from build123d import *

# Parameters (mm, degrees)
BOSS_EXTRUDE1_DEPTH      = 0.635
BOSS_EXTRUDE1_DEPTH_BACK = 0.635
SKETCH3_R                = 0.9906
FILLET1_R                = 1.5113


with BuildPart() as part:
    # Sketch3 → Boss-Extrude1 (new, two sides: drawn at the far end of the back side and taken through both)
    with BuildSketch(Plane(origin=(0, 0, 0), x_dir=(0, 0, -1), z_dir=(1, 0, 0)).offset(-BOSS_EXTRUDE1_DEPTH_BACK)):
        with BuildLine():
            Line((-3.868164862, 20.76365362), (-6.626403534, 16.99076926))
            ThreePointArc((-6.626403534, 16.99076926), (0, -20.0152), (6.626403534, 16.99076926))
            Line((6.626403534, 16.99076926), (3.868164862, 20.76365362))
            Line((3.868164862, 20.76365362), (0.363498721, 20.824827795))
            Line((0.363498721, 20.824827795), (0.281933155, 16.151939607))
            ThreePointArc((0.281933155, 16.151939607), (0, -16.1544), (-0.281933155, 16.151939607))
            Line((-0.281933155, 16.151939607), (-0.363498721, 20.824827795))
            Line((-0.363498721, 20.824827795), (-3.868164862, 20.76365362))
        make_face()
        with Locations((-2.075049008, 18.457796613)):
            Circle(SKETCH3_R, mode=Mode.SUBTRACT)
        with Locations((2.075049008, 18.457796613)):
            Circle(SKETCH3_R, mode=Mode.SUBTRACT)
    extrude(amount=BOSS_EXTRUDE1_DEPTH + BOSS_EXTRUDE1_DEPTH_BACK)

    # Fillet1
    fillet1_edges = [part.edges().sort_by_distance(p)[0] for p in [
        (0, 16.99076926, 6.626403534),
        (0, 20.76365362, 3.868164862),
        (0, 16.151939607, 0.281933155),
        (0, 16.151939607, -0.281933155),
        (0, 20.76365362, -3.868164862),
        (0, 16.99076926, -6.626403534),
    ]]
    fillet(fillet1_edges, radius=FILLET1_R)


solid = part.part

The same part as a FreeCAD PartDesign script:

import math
import FreeCAD as App
import Part
import Sketcher

V = App.Vector
Q = App.Units.Quantity


def edges_at(feature, points):
    """Names of the edges that pass closest to the given points."""
    edges = feature.Shape.Edges
    near = lambda p: min(range(len(edges)), key=lambda i: edges[i].distToShape(Part.Vertex(*p))[0])
    return sorted({f"Edge{near(p) + 1}" for p in points})

doc = App.newDocument("Part")
body = doc.addObject("PartDesign::Body", "Body")

# Sketch on YZ plane
sketch1 = doc.addObject("Sketcher::SketchObject", "Sketch")
body.addObject(sketch1)
sketch1.AttachmentSupport = (doc.YZ_Plane, [""])
sketch1.MapMode = "FlatFace"
sketch1.addGeometry([
    Part.LineSegment(V(20.8, 3.9, 0), V(17, 6.6, 0)),  # 0
    Part.ArcOfCircle(Part.Circle(V(-0.9, 0, 0), V(0, 0, 1), 19.1), math.radians(20), math.radians(340)),  # 1
    Part.LineSegment(V(17, -6.6, 0), V(20.8, -3.9, 0)),  # 2
    Part.LineSegment(V(20.8, -3.9, 0), V(20.8, -0.4, 0)),  # 3
    Part.LineSegment(V(20.8, -0.4, 0), V(16.2, -0.3, 0)),  # 4
    Part.ArcOfCircle(Part.Circle(V(0, 0, 0), V(0, 0, 1), 16.2), math.radians(1), math.radians(359)),  # 5
    Part.LineSegment(V(16.2, 0.3, 0), V(20.8, 0.4, 0)),  # 6
    Part.LineSegment(V(20.8, 0.4, 0), V(20.8, 3.9, 0)),  # 7
    Part.Circle(V(18.5, 2.1, 0), V(0, 0, 1), 1),  # 8
    Part.Circle(V(18.5, -2.1, 0), V(0, 0, 1), 1),  # 9
], False)
sketch1.addConstraint([
    Sketcher.Constraint("Coincident", 0, 2, 1, 1),
    Sketcher.Constraint("Coincident", 1, 2, 2, 1),
    Sketcher.Constraint("Coincident", 2, 2, 3, 1),
    Sketcher.Constraint("Coincident", 3, 2, 4, 1),
    Sketcher.Constraint("Coincident", 4, 2, 5, 2),
    Sketcher.Constraint("Coincident", 5, 1, 6, 1),
    Sketcher.Constraint("Coincident", 6, 2, 7, 1),
    Sketcher.Constraint("Coincident", 7, 2, 0, 1),
    Sketcher.Constraint("Coincident", 5, 3, -1, 1),
    Sketcher.Constraint("Equal", 8, 9),
    Sketcher.Constraint("Symmetric", 8, 3, 9, 3, -1),
    Sketcher.Constraint("Symmetric", 0, 2, 1, 2, -1),
    Sketcher.Constraint("Symmetric", 3, 2, 6, 2, -1),
    Sketcher.Constraint("Symmetric", 2, 2, 7, 2, -1),
    Sketcher.Constraint("Perpendicular", 3, 4),
    Sketcher.Constraint("Perpendicular", 6, 7),
    Sketcher.Constraint("Equal", 2, 4),
    Sketcher.Constraint("Diameter", 8, Q("0.078 in")),
    Sketcher.Constraint("Angle", 3, Q("89 deg")),
    Sketcher.Constraint("Radius", 5, Q("0.636 in")),
    Sketcher.Constraint("Distance", 0, Q("0.184 in")),
    Sketcher.Constraint("Distance", 3, Q("0.138 in")),
    Sketcher.Constraint("Radius", 1, Q("19.096257 mm")),
    Sketcher.Constraint("DistanceY", 3, 2, -1, 1, Q("0.363499 mm")),
    Sketcher.Constraint("DistanceY", 9, 3, 8, 3, Q("4.150098 mm")),
    Sketcher.Constraint("DistanceX", -1, 1, 0, 2, Q("16.990769 mm")),
    Sketcher.Constraint("DistanceX", 1, 3, 8, 3, Q("19.37674 mm")),
])
pad1 = doc.addObject("PartDesign::Pad", "Pad")
body.addObject(pad1)
pad1.Profile = sketch1
pad1.Type = "TwoLengths"
pad1.Length = Q("0.025 in")
pad1.Length2 = Q("0.025 in")
doc.recompute()

fillet = doc.addObject("PartDesign::Fillet", "Fillet")
body.addObject(fillet)
fillet.Base = (pad1, edges_at(pad1, [
    (0, 16.991, 6.626),
    (0, 20.764, 3.868),
    (0, 16.152, 0.282),
    (0, 16.152, -0.282),
    (0, 20.764, -3.868),
    (0, 16.991, -6.626),
]))
fillet.Radius = Q("0.0595 in")

doc.recompute()
